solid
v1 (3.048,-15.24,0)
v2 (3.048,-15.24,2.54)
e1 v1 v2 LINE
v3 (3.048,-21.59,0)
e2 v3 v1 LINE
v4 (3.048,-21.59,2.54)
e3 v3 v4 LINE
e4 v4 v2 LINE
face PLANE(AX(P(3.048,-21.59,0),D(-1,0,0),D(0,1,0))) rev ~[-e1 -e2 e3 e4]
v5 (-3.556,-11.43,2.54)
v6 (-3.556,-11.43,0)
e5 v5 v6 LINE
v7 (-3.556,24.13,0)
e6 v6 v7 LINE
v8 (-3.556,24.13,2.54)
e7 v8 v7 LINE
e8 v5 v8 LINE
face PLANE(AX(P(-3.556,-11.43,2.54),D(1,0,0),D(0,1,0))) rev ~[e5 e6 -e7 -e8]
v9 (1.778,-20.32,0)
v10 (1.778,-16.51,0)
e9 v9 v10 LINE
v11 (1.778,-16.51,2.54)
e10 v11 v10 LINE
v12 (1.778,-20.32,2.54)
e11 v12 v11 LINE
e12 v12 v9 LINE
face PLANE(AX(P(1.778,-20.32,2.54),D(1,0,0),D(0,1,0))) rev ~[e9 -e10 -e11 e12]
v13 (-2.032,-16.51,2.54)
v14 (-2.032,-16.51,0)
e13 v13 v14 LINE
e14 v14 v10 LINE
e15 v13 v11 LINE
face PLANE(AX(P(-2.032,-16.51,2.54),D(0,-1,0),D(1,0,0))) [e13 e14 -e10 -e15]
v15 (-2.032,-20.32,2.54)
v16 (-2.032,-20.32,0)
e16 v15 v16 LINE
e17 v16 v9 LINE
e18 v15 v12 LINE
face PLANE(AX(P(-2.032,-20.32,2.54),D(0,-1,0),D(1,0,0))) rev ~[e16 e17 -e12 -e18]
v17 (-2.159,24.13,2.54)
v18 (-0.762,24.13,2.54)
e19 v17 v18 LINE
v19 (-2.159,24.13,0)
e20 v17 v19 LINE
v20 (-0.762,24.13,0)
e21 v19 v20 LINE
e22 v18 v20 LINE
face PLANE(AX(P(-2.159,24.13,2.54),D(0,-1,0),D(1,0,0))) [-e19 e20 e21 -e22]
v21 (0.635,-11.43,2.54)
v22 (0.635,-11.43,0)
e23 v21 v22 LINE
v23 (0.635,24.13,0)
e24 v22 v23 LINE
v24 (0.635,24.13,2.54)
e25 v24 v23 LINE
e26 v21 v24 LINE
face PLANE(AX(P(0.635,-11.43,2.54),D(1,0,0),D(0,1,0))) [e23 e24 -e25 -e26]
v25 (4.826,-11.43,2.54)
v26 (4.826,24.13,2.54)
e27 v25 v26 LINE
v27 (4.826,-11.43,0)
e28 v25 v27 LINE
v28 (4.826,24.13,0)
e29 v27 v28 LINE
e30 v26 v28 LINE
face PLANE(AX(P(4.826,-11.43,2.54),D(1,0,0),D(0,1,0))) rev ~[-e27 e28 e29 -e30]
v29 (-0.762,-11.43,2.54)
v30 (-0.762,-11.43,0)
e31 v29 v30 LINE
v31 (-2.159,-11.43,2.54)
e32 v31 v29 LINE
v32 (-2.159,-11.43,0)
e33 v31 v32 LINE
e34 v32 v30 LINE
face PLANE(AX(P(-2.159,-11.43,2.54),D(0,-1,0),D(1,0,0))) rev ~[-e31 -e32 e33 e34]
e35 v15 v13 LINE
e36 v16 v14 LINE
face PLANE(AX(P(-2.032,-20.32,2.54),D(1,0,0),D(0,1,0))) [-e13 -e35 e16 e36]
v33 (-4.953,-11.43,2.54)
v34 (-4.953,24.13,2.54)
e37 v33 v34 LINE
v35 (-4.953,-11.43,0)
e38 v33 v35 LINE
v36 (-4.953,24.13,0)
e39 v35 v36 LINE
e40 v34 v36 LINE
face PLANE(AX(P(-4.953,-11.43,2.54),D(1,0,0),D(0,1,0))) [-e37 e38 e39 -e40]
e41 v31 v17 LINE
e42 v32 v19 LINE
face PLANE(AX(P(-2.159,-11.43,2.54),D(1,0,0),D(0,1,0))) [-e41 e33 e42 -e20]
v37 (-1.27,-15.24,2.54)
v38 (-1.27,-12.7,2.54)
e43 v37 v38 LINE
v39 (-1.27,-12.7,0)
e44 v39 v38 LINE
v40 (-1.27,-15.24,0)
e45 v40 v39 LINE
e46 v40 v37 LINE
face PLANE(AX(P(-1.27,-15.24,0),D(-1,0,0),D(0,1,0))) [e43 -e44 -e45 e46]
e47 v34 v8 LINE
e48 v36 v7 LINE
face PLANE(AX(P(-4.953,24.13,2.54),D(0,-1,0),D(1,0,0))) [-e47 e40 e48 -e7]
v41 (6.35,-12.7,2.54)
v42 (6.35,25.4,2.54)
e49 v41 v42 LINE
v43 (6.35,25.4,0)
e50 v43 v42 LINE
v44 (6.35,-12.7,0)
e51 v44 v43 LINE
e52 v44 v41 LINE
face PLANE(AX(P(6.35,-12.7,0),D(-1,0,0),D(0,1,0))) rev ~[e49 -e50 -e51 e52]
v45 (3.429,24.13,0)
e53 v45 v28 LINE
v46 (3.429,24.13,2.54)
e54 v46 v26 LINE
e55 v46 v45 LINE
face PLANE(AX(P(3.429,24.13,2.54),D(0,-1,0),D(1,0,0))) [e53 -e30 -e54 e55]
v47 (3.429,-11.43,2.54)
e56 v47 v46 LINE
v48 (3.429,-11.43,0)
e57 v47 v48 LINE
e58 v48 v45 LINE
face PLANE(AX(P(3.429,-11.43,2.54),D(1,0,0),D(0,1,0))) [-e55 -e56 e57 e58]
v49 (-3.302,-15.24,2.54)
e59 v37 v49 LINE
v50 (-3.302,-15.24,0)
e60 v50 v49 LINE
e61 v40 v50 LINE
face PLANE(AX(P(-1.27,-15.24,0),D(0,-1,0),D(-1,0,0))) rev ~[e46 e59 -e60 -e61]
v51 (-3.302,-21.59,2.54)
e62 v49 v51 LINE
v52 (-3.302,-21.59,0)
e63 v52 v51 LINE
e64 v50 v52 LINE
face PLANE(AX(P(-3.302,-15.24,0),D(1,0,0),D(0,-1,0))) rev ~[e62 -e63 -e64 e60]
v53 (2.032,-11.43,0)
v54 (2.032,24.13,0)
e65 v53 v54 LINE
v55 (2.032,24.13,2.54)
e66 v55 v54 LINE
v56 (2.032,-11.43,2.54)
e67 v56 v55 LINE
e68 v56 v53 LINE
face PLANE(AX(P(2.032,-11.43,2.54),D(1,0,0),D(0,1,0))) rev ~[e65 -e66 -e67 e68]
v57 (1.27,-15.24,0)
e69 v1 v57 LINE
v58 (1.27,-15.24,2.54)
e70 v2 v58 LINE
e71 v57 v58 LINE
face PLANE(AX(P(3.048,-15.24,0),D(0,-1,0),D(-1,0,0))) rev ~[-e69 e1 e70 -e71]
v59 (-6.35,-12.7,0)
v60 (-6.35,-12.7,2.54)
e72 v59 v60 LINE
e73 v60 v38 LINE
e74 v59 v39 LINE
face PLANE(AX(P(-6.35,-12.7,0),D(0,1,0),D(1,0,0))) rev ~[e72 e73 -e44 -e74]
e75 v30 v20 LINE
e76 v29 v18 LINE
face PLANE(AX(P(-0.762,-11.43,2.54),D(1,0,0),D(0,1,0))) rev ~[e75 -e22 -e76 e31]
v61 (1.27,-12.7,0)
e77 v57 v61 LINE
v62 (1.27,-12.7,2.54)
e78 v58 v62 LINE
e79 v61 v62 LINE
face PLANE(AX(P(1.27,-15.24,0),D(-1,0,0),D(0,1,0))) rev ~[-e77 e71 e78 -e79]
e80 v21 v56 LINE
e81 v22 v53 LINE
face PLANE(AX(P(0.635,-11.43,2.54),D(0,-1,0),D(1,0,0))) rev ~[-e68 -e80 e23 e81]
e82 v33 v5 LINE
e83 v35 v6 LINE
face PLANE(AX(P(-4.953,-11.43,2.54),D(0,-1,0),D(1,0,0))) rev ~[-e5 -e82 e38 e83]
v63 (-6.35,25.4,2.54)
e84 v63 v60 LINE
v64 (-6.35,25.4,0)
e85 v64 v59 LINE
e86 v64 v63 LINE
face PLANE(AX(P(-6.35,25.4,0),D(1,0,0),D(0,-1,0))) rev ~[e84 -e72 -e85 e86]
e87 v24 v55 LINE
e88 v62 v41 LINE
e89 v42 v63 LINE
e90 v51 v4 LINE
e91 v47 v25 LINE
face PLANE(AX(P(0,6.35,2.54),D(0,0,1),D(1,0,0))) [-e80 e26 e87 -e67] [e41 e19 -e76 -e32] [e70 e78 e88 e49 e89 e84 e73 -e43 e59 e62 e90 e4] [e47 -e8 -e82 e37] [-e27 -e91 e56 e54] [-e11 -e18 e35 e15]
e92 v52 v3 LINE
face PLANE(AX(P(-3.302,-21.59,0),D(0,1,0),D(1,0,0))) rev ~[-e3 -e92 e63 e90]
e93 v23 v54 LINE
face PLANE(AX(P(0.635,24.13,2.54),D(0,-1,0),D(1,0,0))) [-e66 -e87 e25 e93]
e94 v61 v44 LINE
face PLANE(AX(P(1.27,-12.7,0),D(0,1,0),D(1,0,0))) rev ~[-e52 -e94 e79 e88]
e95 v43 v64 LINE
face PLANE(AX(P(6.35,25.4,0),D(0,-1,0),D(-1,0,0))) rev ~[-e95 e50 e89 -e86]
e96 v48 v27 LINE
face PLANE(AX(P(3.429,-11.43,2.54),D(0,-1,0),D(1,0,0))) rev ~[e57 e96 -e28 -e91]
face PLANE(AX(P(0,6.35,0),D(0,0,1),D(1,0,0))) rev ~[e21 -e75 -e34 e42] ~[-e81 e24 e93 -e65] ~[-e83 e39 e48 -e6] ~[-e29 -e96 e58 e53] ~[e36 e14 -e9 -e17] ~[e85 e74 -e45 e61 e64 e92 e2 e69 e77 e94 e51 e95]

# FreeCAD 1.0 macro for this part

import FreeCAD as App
import Part
import Sketcher

V = App.Vector
Q = App.Units.Quantity


def add_polygon(sketch, points):
    """Adds a closed chain of lines whose ends are joined by coincident constraints."""
    first, n = sketch.GeometryCount, len(points)
    for a, b in zip(points, points[1:] + points[:1]):
        sketch.addGeometry(Part.LineSegment(App.Vector(*a, 0), App.Vector(*b, 0)), False)
    for i in range(n):
        sketch.addConstraint(Sketcher.Constraint("Coincident", first + i, 2, first + (i + 1) % n, 1))

doc = App.newDocument("Part")
params = doc.addObject("Spreadsheet::Sheet", "Params")
for row, (alias, value) in enumerate([
    ("sketch1_width", "0.5 in"),
    ("sketch1_width2", "0.2 in"),
    ("sketch1_height", "1.5 in"),
    ("sketch1_height2", "0.1 in"),
    ("sketch1_width3", "0.08 in"),
    ("pad1_length", "0.1 in"),
    ("sketch2_height", "1.4 in"),
    ("sketch2_width", "0.055 in"),
    ("sketch3_width", "0.15 in"),
], start=1):
    params.set(f"A{row}", alias)
    params.set(f"B{row}", "=" + value)
    params.setAlias(f"B{row}", alias)

body = doc.addObject("PartDesign::Body", "Body")

# Sketch on XY plane
sketch1 = doc.addObject("Sketcher::SketchObject", "Sketch")
body.addObject(sketch1)
sketch1.AttachmentSupport = (doc.XY_Plane, [""])
sketch1.MapMode = "FlatFace"
add_polygon(sketch1, [(6.3, 25.4), (-6.3, 25.4), (-6.3, -12.7), (-1.3, -12.7), (-1.3, -15.2), (-3.3, -15.2), (-3.3, -21.6), (3, -21.6), (3, -15.2), (1.3, -15.2), (1.3, -12.7), (6.3, -12.7)])  # lines 0-11
sketch1.addConstraint([
    Sketcher.Constraint("Horizontal", 0),
    Sketcher.Constraint("Vertical", 1),
    Sketcher.Constraint("Horizontal", 2),
    Sketcher.Constraint("Vertical", 3),
    Sketcher.Constraint("Horizontal", 4),
    Sketcher.Constraint("Vertical", 5),
    Sketcher.Constraint("Horizontal", 6),
    Sketcher.Constraint("Vertical", 7),
    Sketcher.Constraint("Horizontal", 8),
    Sketcher.Constraint("Vertical", 9),
    Sketcher.Constraint("Horizontal", 10),
    Sketcher.Constraint("Vertical", 11),
    Sketcher.Constraint("Symmetric", 3, 2, 8, 2, -2),
    Sketcher.Constraint("Symmetric", 1, 2, 10, 2, -2),
    Sketcher.Constraint("Equal", 6, 5),
    Sketcher.Constraint("DistanceX", 0, 2, 0, 1, Q("0.5 in")),
    Sketcher.Constraint("DistanceX", 2, 1, 2, 2, Q("0.2 in")),
    Sketcher.Constraint("DistanceY", 1, 2, 1, 1, Q("1.5 in")),
    Sketcher.Constraint("DistanceY", 3, 2, 3, 1, Q("0.1 in")),
    Sketcher.Constraint("DistanceY", -1, 1, 0, 2, Q("1 in")),
    Sketcher.Constraint("DistanceX", 4, 2, 4, 1, Q("0.08 in")),
    Sketcher.Constraint("DistanceX", 6, 1, 6, 2, Q("0.25 in")),
])
sketch1.setExpression("Constraints[27]", "Params.sketch1_width")
sketch1.setExpression("Constraints[28]", "Params.sketch1_width2")
sketch1.setExpression("Constraints[29]", "Params.sketch1_height")
sketch1.setExpression("Constraints[30]", "Params.sketch1_height2")
sketch1.setExpression("Constraints[32]", "Params.sketch1_width3")
pad1 = doc.addObject("PartDesign::Pad", "Pad")
body.addObject(pad1)
pad1.Profile = sketch1
pad1.setExpression("Length", "Params.pad1_length")

# Sketch on XY plane
sketch2 = doc.addObject("Sketcher::SketchObject", "Sketch001")
body.addObject(sketch2)
sketch2.AttachmentSupport = (doc.XY_Plane, [""])
sketch2.MapMode = "FlatFace"
sketch2.AttachmentOffset = App.Placement(V(0, 0, 0.1 * 25.4), App.Rotation())
add_polygon(sketch2, [(-5, 24.1), (-5, -11.4), (-3.6, -11.4), (-3.6, 24.1)])  # lines 0-3
add_polygon(sketch2, [(-2.2, 24.1), (-2.2, -11.4), (-0.8, -11.4), (-0.8, 24.1)])  # lines 4-7
add_polygon(sketch2, [(0.6, 24.1), (0.6, -11.4), (2, -11.4), (2, 24.1)])  # lines 8-11
add_polygon(sketch2, [(3.4, 24.1), (3.4, -11.4), (4.8, -11.4), (4.8, 24.1)])  # lines 12-15
sketch2.addConstraint([
    Sketcher.Constraint("Vertical", 0),
    Sketcher.Constraint("Horizontal", 1),
    Sketcher.Constraint("Vertical", 2),
    Sketcher.Constraint("Horizontal", 3),
    Sketcher.Constraint("Vertical", 4),
    Sketcher.Constraint("Horizontal", 5),
    Sketcher.Constraint("Vertical", 6),
    Sketcher.Constraint("Horizontal", 7),
    Sketcher.Constraint("Vertical", 8),
    Sketcher.Constraint("Horizontal", 9),
    Sketcher.Constraint("Vertical", 10),
    Sketcher.Constraint("Horizontal", 11),
    Sketcher.Constraint("Vertical", 12),
    Sketcher.Constraint("Horizontal", 13),
    Sketcher.Constraint("Vertical", 14),
    Sketcher.Constraint("Horizontal", 15),
    Sketcher.Constraint("Horizontal", 1, 2, 4, 2),
    Sketcher.Constraint("Horizontal", 3, 2, 6, 2),
    Sketcher.Constraint("Horizontal", 5, 2, 8, 2),
    Sketcher.Constraint("Horizontal", 7, 2, 10, 2),
    Sketcher.Constraint("Horizontal", 9, 2, 12, 2),
    Sketcher.Constraint("Horizontal", 11, 2, 14, 2),
    Sketcher.Constraint("Equal", 3, 5),
    Sketcher.Constraint("Equal", 7, 9),
    Sketcher.Constraint("Equal", 11, 13),
    Sketcher.Constraint("DistanceY", 0, 2, 0, 1, Q("1.4 in")),
    Sketcher.Constraint("DistanceX", 1, 1, 1, 2, Q("0.055 in")),
    Sketcher.Constraint("DistanceY", 0, 2, -1, 1, Q("0.45 in")),
    Sketcher.Constraint("DistanceX", 1, 2, -1, 1, Q("0.14 in")),
    Sketcher.Constraint("DistanceX", 5, 2, -1, 1, Q("0.03 in")),
    Sketcher.Constraint("DistanceX", -1, 1, 9, 2, Q("0.08 in")),
    Sketcher.Constraint("DistanceX", -1, 1, 13, 2, Q("0.19 in")),
])
sketch2.setExpression("Constraints[41]", "Params.sketch2_height")
sketch2.setExpression("Constraints[42]", "Params.sketch2_width")
pocket1 = doc.addObject("PartDesign::Pocket", "Pocket")
body.addObject(pocket1)
pocket1.Profile = sketch2
pocket1.Type = "ThroughAll"

# Sketch on XY plane
sketch3 = doc.addObject("Sketcher::SketchObject", "Sketch002")
body.addObject(sketch3)
sketch3.AttachmentSupport = (doc.XY_Plane, [""])
sketch3.MapMode = "FlatFace"
sketch3.AttachmentOffset = App.Placement(V(0, 0, 0.1 * 25.4), App.Rotation())
add_polygon(sketch3, [(-2, -16.5), (-2, -20.3), (1.8, -20.3), (1.8, -16.5)])  # lines 0-3
sketch3.addConstraint([
    Sketcher.Constraint("Vertical", 0),
    Sketcher.Constraint("Horizontal", 1),
    Sketcher.Constraint("Vertical", 2),
    Sketcher.Constraint("Horizontal", 3),
    Sketcher.Constraint("Equal", 3, 0),
    Sketcher.Constraint("DistanceX", 1, 1, 1, 2, Q("0.15 in")),
    Sketcher.Constraint("DistanceY", 0, 2, -1, 1, Q("0.8 in")),
    Sketcher.Constraint("DistanceX", 0, 2, -1, 1, Q("0.08 in")),
])
sketch3.setExpression("Constraints[9]", "Params.sketch3_width")
pocket2 = doc.addObject("PartDesign::Pocket", "Pocket001")
body.addObject(pocket2)
pocket2.Profile = sketch3
pocket2.Type = "ThroughAll"

doc.recompute()
